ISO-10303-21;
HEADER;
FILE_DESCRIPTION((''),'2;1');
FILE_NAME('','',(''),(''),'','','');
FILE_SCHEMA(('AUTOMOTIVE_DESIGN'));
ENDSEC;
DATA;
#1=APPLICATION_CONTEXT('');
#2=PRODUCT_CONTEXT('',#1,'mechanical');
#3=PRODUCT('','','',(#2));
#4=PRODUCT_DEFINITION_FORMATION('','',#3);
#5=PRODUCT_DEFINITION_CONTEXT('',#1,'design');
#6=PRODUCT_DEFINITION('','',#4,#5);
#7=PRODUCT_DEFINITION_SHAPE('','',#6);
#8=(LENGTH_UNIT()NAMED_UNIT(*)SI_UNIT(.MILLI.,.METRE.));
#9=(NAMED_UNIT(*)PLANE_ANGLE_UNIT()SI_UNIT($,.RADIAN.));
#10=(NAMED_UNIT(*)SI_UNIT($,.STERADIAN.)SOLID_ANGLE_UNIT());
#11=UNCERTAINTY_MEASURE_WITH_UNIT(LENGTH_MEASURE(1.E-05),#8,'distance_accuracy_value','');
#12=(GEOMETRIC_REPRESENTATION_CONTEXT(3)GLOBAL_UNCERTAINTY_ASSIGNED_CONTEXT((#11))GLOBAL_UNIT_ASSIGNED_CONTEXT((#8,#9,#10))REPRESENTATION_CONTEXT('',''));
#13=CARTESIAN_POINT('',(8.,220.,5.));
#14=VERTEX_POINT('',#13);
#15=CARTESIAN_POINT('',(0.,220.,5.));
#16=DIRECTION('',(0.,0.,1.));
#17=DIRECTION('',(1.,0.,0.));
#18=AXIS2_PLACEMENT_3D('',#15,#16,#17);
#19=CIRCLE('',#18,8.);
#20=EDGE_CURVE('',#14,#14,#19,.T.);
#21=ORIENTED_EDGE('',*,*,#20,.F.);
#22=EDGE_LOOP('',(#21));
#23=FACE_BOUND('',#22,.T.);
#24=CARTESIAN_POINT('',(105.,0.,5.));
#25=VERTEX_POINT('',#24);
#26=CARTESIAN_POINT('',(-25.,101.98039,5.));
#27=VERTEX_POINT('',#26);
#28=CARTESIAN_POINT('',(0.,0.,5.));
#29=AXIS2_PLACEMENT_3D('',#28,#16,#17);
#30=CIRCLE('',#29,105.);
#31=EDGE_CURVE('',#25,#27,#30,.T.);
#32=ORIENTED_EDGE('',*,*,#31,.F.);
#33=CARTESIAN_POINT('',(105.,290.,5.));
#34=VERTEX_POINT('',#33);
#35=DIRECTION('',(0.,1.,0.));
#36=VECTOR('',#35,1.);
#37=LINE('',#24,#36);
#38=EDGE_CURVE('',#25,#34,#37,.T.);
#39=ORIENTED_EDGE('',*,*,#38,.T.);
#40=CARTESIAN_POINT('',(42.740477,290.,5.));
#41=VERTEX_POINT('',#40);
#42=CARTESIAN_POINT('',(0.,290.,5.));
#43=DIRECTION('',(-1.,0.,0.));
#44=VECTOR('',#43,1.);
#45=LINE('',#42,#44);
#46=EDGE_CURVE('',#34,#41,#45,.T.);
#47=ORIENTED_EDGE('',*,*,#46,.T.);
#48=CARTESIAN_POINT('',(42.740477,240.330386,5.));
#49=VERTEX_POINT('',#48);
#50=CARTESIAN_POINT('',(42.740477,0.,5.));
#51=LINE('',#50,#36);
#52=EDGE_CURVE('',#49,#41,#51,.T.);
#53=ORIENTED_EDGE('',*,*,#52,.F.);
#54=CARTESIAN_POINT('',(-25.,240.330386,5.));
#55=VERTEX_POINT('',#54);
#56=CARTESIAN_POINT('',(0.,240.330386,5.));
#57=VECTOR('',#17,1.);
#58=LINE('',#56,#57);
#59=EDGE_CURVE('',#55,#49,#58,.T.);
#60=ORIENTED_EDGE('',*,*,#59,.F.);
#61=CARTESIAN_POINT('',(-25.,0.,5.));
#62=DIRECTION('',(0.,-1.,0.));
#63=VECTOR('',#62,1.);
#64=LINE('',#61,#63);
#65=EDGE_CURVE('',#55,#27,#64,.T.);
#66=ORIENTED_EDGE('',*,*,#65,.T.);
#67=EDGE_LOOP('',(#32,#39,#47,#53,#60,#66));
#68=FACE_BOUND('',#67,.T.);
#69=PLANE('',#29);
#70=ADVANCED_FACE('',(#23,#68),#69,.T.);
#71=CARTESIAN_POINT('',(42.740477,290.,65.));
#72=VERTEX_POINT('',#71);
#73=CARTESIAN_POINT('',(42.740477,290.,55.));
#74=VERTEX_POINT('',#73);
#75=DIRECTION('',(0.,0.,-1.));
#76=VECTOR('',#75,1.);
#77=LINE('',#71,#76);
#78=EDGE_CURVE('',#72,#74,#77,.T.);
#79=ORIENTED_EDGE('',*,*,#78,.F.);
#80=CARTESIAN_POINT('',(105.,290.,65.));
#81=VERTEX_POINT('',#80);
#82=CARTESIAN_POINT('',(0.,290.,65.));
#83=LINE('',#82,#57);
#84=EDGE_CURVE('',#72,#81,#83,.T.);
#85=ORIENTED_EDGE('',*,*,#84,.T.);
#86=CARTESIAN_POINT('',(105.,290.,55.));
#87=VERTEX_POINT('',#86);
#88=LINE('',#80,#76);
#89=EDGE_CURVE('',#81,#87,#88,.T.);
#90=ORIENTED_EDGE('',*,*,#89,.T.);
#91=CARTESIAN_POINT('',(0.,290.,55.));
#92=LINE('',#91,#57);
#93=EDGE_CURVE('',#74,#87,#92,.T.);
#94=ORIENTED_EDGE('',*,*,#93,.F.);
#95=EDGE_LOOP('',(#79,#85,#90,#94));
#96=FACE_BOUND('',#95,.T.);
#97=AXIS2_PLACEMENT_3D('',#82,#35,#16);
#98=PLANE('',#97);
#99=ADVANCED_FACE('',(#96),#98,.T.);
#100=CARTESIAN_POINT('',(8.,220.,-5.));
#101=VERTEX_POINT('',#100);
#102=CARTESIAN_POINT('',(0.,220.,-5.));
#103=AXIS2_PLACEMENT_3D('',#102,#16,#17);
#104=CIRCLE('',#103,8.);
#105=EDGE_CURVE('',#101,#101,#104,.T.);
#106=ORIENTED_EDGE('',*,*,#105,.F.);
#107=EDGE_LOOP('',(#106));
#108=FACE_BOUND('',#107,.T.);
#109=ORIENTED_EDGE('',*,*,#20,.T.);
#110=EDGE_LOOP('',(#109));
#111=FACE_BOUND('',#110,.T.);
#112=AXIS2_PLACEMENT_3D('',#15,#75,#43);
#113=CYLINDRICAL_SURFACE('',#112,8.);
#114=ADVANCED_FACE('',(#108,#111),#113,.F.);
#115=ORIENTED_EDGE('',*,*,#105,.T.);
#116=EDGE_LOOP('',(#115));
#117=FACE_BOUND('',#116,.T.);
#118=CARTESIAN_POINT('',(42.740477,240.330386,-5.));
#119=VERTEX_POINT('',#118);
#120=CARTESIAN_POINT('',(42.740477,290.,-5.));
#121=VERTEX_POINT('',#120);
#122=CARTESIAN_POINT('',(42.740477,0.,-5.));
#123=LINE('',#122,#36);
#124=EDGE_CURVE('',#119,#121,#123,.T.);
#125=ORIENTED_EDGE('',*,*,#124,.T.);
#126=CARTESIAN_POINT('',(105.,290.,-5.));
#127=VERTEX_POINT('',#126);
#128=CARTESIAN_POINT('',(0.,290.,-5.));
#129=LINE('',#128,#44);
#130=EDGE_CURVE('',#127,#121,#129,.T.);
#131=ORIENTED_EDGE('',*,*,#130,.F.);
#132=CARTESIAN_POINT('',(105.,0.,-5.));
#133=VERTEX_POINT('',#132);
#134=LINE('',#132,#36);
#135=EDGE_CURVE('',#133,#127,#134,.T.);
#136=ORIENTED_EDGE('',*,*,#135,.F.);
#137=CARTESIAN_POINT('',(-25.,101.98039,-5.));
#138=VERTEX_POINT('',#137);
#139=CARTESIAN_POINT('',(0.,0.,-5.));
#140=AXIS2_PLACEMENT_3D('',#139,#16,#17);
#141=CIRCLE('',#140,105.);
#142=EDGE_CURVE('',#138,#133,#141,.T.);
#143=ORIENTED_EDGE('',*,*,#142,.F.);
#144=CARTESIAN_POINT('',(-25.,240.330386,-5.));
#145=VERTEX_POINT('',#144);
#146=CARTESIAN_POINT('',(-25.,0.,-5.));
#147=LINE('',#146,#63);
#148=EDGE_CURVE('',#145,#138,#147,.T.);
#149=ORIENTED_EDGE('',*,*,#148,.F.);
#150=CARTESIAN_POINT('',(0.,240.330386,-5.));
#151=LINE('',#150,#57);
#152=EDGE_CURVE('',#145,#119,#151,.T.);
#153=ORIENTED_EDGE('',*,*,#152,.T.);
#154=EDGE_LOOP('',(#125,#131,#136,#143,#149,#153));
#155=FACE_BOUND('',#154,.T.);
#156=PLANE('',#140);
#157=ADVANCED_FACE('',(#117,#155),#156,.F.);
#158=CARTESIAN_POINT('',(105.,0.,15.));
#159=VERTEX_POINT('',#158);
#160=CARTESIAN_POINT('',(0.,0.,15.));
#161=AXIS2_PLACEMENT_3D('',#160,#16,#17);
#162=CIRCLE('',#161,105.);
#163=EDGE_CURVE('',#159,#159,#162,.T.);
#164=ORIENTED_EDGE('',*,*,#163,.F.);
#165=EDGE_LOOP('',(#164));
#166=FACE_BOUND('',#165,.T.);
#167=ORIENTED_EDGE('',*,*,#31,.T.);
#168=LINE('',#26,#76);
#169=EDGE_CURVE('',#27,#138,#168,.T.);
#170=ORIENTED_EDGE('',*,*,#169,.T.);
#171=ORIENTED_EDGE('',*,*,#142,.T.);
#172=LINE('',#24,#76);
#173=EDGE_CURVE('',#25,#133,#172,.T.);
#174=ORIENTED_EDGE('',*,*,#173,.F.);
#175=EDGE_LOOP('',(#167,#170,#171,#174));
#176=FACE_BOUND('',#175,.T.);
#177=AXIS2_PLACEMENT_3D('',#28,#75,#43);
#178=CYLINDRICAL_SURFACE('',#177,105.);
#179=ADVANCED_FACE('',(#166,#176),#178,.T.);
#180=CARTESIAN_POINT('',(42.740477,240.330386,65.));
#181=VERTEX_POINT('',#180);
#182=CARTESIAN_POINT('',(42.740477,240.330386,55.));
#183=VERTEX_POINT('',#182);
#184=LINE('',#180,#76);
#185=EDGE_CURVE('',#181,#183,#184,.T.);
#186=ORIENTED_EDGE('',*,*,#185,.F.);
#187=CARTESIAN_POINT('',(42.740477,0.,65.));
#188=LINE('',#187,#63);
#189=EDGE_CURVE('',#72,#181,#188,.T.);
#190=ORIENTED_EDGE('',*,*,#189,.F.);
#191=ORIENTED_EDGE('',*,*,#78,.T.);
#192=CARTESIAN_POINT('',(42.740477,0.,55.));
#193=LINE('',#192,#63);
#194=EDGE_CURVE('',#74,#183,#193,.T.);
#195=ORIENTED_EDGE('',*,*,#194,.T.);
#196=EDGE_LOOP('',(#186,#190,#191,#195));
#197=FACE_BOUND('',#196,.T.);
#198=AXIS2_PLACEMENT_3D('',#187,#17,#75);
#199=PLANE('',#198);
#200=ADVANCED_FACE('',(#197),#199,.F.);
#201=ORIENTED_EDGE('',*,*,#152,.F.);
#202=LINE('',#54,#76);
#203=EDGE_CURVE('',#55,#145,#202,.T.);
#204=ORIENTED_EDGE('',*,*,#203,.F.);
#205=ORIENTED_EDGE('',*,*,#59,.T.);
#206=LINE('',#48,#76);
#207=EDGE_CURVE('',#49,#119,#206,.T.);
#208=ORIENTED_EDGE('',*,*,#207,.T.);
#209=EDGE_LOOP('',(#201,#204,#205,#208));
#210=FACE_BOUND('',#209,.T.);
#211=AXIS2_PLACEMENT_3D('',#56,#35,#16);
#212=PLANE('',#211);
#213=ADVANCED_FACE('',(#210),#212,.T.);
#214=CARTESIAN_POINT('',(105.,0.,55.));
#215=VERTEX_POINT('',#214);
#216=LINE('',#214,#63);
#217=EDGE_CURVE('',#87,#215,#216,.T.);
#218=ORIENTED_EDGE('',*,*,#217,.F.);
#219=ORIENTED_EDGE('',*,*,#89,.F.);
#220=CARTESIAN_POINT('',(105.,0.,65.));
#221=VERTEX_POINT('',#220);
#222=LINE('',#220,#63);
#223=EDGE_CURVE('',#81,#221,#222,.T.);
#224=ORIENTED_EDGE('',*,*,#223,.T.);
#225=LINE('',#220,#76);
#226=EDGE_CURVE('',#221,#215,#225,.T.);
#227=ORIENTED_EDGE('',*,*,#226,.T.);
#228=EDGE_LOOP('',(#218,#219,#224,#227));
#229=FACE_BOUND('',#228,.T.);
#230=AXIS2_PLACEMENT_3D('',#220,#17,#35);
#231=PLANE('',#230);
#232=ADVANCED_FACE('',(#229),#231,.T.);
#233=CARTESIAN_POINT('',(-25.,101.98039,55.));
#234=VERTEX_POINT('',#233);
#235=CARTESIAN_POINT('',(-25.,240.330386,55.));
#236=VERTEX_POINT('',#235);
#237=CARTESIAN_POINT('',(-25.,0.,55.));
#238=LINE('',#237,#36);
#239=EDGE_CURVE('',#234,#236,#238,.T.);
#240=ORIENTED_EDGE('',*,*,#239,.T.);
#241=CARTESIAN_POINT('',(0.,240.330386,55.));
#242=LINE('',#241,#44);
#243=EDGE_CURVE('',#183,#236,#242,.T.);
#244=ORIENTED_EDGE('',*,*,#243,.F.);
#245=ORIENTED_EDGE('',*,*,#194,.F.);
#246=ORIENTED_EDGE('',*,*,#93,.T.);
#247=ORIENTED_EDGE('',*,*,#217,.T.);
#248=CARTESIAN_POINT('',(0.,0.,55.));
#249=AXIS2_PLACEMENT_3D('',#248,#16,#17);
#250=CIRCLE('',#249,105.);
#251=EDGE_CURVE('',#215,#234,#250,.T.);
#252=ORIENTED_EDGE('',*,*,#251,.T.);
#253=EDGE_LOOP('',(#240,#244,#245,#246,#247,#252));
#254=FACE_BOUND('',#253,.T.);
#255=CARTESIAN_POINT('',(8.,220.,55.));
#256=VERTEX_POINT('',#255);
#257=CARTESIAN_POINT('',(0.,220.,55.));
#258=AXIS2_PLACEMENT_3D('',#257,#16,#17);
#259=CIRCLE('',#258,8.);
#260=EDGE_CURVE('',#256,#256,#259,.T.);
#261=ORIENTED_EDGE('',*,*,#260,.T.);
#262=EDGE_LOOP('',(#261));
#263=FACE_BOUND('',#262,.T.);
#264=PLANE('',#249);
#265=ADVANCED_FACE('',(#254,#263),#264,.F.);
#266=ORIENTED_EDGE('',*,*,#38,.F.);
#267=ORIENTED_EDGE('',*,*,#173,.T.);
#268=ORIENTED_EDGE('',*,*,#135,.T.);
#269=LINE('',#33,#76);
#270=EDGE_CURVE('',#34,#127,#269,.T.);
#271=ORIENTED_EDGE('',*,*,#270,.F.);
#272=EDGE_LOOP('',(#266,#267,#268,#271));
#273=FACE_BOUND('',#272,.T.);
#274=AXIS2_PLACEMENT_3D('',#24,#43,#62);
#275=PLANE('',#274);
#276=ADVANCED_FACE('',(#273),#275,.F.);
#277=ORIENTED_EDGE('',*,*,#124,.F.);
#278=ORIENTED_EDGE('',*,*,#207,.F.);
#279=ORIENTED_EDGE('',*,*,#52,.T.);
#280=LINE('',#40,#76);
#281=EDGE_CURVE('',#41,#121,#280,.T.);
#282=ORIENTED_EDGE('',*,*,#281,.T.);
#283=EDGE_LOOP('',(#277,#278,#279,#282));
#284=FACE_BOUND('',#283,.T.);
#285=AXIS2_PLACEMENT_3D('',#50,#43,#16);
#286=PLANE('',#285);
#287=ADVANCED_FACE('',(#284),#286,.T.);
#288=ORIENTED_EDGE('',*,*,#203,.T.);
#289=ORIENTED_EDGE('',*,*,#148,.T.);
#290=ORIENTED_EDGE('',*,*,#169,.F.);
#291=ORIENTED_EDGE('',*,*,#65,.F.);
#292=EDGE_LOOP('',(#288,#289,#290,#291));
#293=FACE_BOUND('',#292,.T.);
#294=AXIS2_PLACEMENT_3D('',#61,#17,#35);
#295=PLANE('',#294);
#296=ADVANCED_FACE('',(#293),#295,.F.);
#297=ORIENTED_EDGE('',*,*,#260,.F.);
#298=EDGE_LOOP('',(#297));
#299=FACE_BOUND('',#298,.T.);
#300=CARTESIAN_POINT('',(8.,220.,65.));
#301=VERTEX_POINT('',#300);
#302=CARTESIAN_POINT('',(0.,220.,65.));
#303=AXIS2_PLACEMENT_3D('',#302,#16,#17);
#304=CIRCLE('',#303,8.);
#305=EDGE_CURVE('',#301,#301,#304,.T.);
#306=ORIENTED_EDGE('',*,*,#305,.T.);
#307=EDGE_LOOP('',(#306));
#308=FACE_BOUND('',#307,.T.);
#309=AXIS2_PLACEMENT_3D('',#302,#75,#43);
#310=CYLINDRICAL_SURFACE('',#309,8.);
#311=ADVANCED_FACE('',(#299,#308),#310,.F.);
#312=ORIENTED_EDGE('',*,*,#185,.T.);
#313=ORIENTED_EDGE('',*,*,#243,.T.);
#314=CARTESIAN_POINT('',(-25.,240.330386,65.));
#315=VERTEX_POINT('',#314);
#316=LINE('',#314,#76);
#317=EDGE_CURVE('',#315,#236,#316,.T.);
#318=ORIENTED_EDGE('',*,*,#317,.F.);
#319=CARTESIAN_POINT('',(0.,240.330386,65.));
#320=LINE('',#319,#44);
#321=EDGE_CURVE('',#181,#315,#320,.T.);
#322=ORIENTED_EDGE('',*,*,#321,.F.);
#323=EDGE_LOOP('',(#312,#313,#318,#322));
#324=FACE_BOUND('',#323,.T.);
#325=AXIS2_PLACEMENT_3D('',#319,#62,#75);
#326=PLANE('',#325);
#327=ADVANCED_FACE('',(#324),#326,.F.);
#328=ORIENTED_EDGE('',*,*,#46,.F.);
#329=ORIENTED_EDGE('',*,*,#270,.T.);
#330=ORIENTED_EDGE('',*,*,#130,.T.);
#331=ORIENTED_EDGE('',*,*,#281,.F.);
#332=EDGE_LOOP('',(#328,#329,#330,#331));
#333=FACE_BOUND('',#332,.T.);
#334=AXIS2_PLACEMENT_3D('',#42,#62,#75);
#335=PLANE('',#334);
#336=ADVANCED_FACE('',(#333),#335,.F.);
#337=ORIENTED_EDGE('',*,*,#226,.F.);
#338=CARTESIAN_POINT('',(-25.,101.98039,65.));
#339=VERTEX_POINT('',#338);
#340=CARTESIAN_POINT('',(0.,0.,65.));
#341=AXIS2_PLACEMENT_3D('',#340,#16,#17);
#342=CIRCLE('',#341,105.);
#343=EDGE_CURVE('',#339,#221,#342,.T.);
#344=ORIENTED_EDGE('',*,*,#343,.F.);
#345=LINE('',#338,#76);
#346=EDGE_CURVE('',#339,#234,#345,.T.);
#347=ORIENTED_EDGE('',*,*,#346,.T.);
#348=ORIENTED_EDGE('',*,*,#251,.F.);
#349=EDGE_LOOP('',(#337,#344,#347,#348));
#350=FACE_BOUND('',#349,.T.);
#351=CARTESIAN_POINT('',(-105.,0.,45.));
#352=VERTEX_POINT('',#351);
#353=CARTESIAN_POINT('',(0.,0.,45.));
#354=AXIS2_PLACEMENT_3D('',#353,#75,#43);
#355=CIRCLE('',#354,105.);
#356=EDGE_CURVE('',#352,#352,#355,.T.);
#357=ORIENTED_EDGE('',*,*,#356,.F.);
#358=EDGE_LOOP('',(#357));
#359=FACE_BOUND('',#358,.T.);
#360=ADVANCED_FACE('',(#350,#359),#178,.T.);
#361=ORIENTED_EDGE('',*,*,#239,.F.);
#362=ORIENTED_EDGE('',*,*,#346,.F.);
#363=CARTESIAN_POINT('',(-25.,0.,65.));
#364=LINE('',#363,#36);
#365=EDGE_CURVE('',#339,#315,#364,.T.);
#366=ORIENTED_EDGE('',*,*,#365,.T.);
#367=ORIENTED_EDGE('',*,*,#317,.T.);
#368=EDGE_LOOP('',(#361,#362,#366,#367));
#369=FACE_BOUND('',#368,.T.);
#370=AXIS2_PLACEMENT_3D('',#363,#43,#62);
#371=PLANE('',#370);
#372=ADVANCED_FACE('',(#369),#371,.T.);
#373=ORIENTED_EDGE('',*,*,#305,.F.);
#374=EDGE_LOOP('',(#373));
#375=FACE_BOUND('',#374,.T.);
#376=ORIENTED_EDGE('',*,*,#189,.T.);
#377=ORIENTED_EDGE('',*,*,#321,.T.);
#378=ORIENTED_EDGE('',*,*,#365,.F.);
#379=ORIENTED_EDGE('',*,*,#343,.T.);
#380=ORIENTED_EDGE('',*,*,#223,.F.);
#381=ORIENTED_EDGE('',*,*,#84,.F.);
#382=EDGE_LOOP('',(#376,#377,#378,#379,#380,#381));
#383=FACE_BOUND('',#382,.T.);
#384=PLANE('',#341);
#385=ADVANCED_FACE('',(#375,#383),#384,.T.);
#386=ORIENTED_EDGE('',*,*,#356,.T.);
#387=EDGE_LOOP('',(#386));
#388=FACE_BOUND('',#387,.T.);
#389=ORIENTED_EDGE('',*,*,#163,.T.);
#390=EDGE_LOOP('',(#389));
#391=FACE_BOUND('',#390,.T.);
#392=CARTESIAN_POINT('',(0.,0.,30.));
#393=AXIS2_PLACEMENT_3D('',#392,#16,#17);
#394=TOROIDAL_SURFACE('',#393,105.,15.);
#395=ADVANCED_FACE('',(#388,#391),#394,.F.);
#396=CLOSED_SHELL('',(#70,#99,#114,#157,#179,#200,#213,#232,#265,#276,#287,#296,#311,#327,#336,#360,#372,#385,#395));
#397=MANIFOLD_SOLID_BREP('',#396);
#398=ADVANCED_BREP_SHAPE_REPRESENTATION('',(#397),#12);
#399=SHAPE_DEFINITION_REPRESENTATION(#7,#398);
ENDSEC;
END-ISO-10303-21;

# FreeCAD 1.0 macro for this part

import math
import FreeCAD as App
import Part
import Sketcher

V = App.Vector

doc = App.newDocument("Part")
body = doc.addObject("PartDesign::Body", "Body")

# Sketch on XY plane
sketch1 = body.newObject("Sketcher::SketchObject", "Sketch")
sketch1.AttachmentSupport = (doc.getObject("XY_Plane"), [""])
sketch1.MapMode = "FlatFace"
sketch1.addGeometry([
    Part.LineSegment(V(-25, 240.330386, 0), V(-25, 101.98039, 0)),  # 0
    Part.ArcOfCircle(Part.Circle(V(0, 0, 0), V(0, 0, 1), 105), math.radians(103.774147), math.radians(360)),  # 1
    Part.LineSegment(V(105, 0, 0), V(105, 290, 0)),  # 2
    Part.LineSegment(V(105, 290, 0), V(42.740477, 290, 0)),  # 3
    Part.LineSegment(V(42.740477, 290, 0), V(42.740477, 240.330386, 0)),  # 4
    Part.LineSegment(V(42.740477, 240.330386, 0), V(-25, 240.330386, 0)),  # 5
    Part.Circle(V(0, 220, 0), V(0, 0, 1), 8),  # 6
], False)
sketch1.addConstraint([
    Sketcher.Constraint("Coincident", 0, 2, 1, 1),
    Sketcher.Constraint("Tangent", 1, 2, 2, 1),
    Sketcher.Constraint("Coincident", 2, 2, 3, 1),
    Sketcher.Constraint("Coincident", 3, 2, 4, 1),
    Sketcher.Constraint("Coincident", 4, 2, 5, 1),
    Sketcher.Constraint("Coincident", 5, 2, 0, 1),
    Sketcher.Constraint("Vertical", 0),
    Sketcher.Constraint("Vertical", 2),
    Sketcher.Constraint("Horizontal", 3),
    Sketcher.Constraint("Vertical", 4),
    Sketcher.Constraint("Horizontal", 5),
    Sketcher.Constraint("Coincident", 1, 3, -1, 1),
    Sketcher.Constraint("PointOnObject", 6, 3, -2),
    Sketcher.Constraint("Diameter", 6, 16.0),
    Sketcher.Constraint("Radius", 1, 105.0),
    Sketcher.Constraint("DistanceY", 2, 1, 2, 2, 290.0),
    Sketcher.Constraint("DistanceY", -1, 1, 6, 3, 220.0),
    Sketcher.Constraint("DistanceX", 0, 2, -1, 1, 25.0),
    Sketcher.Constraint("DistanceX", 3, 2, 3, 1, 62.259523),
    Sketcher.Constraint("DistanceY", 0, 2, 0, 1, 138.349996),
])
pad1 = body.newObject("PartDesign::Pad", "Pad")
pad1.Profile = sketch1
pad1.Length = 10
pad1.Midplane = True

# Sketch on XY plane
sketch2 = body.newObject("Sketcher::SketchObject", "Sketch001")
sketch2.AttachmentSupport = (doc.getObject("XY_Plane"), [""])
sketch2.MapMode = "FlatFace"
sketch2.AttachmentOffset = App.Placement(V(0, 0, 5), App.Rotation())
sketch2.addGeometry(Part.Circle(V(0, 0, 0), V(0, 0, 1), 105), False)
sketch2.addConstraint([
    Sketcher.Constraint("Coincident", 0, 3, -1, 1),
    Sketcher.Constraint("Diameter", 0, 210.0),
])
pad2 = body.newObject("PartDesign::Pad", "Pad001")
pad2.Profile = sketch2
pad2.Length = 50

# Sketch on XY plane
sketch3 = body.newObject("Sketcher::SketchObject", "Sketch002")
sketch3.AttachmentSupport = (doc.getObject("XY_Plane"), [""])
sketch3.MapMode = "FlatFace"
sketch3.AttachmentOffset = App.Placement(V(0, 0, 55), App.Rotation())
sketch3.addGeometry([
    Part.LineSegment(V(-25, 240.330386, 0), V(-25, 101.98039, 0)),  # 0
    Part.ArcOfCircle(Part.Circle(V(0, 0, 0), V(0, 0, 1), 105), math.radians(103.774147), math.radians(360)),  # 1
    Part.LineSegment(V(105, 0, 0), V(105, 290, 0)),  # 2
    Part.LineSegment(V(105, 290, 0), V(42.740477, 290, 0)),  # 3
    Part.LineSegment(V(42.740477, 290, 0), V(42.740477, 240.330386, 0)),  # 4
    Part.LineSegment(V(42.740477, 240.330386, 0), V(-25, 240.330386, 0)),  # 5
    Part.Circle(V(0, 220, 0), V(0, 0, 1), 8),  # 6
], False)
sketch3.addConstraint([
    Sketcher.Constraint("Coincident", 0, 2, 1, 1),
    Sketcher.Constraint("Tangent", 1, 2, 2, 1),
    Sketcher.Constraint("Coincident", 2, 2, 3, 1),
    Sketcher.Constraint("Coincident", 3, 2, 4, 1),
    Sketcher.Constraint("Coincident", 4, 2, 5, 1),
    Sketcher.Constraint("Coincident", 5, 2, 0, 1),
    Sketcher.Constraint("Vertical", 0),
    Sketcher.Constraint("Vertical", 2),
    Sketcher.Constraint("Horizontal", 3),
    Sketcher.Constraint("Vertical", 4),
    Sketcher.Constraint("Horizontal", 5),
    Sketcher.Constraint("Coincident", 1, 3, -1, 1),
    Sketcher.Constraint("PointOnObject", 6, 3, -2),
    Sketcher.Constraint("Diameter", 6, 16.0),
    Sketcher.Constraint("Radius", 1, 105.0),
    Sketcher.Constraint("DistanceY", 2, 1, 2, 2, 290.0),
    Sketcher.Constraint("DistanceY", -1, 1, 6, 3, 220.0),
    Sketcher.Constraint("DistanceX", 0, 2, -1, 1, 25.0),
    Sketcher.Constraint("DistanceX", 3, 2, 3, 1, 62.259523),
    Sketcher.Constraint("DistanceY", 0, 2, 0, 1, 138.349996),
])
pad3 = body.newObject("PartDesign::Pad", "Pad002")
pad3.Profile = sketch3
pad3.Length = 10
body2 = doc.addObject("PartDesign::Body", "Body001")

# Sketch on YZ plane
sketch4 = body2.newObject("Sketcher::SketchObject", "Sketch003")
sketch4.AttachmentSupport = (doc.getObject("YZ_Plane001"), [""])
sketch4.MapMode = "FlatFace"
sketch4.addGeometry(Part.Circle(V(105, 30, 0), V(0, 0, 1), 15), False)
sketch4.addConstraint([
    Sketcher.Constraint("Diameter", 0, 30.0),
    Sketcher.Constraint("DistanceX", -1, 1, 0, 3, 105.0),
    Sketcher.Constraint("DistanceY", -1, 1, 0, 3, 30.0),
])
revolution = body2.newObject("PartDesign::Revolution", "Revolution")
revolution.Profile = sketch4
revolution.ReferenceAxis = (sketch4, ["V_Axis"])
revolution.Angle = 360
doc.recompute()

boolean = body.newObject("PartDesign::Boolean", "Boolean")
boolean.Type = "Cut"
boolean.addObjects([body2])

doc.recompute()
